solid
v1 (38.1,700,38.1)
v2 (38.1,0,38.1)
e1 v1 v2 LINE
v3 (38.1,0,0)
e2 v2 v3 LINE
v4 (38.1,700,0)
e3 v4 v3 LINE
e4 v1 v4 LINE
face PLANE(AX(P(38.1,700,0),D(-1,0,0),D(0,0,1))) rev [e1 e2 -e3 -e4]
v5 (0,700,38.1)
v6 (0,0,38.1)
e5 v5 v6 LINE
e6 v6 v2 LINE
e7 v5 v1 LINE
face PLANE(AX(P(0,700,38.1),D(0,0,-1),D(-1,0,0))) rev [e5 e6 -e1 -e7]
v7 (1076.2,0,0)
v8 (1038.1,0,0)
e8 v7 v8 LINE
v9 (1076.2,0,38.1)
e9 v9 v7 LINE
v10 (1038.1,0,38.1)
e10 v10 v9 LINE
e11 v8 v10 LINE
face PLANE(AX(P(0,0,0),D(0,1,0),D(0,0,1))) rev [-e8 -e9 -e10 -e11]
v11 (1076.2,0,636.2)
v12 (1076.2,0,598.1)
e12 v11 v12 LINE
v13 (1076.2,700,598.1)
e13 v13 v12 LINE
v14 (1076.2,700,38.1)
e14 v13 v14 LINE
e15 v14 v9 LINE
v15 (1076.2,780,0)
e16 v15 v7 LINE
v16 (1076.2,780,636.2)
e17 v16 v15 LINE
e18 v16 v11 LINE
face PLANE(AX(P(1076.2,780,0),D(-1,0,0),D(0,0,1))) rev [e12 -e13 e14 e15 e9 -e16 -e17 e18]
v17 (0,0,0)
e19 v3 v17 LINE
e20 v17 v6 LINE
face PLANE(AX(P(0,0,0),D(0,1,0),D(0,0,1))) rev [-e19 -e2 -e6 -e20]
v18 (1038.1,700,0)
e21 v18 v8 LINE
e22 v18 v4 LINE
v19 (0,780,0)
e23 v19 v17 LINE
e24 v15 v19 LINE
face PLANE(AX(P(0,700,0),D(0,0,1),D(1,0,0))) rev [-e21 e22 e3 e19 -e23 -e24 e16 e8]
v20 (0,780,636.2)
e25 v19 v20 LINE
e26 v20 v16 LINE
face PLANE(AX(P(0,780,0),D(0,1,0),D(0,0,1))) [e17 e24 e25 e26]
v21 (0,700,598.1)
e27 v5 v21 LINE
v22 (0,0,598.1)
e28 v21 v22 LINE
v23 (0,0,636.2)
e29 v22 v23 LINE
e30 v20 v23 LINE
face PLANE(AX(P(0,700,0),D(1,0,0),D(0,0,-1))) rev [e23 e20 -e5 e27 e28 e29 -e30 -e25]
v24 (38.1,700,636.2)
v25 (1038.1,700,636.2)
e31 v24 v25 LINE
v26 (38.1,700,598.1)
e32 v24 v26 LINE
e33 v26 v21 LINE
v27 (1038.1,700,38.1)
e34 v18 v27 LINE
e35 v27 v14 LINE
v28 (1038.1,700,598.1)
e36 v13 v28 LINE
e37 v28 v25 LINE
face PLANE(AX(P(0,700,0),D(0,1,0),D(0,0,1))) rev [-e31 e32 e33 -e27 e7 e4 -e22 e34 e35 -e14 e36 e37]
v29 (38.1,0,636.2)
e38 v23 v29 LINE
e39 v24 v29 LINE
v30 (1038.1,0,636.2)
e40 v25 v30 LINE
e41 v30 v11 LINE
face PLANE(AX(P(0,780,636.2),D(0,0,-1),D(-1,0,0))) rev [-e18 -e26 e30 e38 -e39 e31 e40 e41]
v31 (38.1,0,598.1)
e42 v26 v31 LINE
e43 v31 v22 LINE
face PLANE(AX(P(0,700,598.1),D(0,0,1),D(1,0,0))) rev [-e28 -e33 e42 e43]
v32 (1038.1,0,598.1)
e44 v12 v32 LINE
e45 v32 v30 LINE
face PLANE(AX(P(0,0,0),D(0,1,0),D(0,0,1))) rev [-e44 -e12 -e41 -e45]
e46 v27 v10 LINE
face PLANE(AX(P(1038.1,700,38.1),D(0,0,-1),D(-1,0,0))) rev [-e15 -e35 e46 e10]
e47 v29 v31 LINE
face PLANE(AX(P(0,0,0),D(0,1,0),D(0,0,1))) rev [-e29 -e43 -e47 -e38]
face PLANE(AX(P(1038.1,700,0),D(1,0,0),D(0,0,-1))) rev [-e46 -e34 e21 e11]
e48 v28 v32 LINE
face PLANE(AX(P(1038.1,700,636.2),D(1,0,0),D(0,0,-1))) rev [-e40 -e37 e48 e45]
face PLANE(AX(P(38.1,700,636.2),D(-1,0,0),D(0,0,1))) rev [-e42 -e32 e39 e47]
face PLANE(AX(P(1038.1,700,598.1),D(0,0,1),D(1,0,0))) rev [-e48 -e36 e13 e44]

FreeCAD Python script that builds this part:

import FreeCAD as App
import Part
import Sketcher

V = App.Vector


def add_polygon(sketch, points):
    """Adds a closed chain of lines whose ends are joined by coincident constraints."""
    first, n = sketch.GeometryCount, len(points)
    for a, b in zip(points, points[1:] + points[:1]):
        sketch.addGeometry(Part.LineSegment(App.Vector(*a, 0), App.Vector(*b, 0)), False)
    for i in range(n):
        sketch.addConstraint(Sketcher.Constraint("Coincident", first + i, 2, first + (i + 1) % n, 1))

doc = App.newDocument("Part")
body = doc.addObject("PartDesign::Body", "Body")

# Sketch on XZ plane
sketch1 = body.newObject("Sketcher::SketchObject", "Sketch")
sketch1.AttachmentSupport = (doc.getObject("XZ_Plane"), [""])
sketch1.MapMode = "FlatFace"
add_polygon(sketch1, [(0, 0), (0, 38.1), (38.1, 38.1), (38.1, 0)])  # lines 0-3
sketch1.addConstraint(Sketcher.Constraint("Vertical", 0))
sketch1.addConstraint(Sketcher.Constraint("Horizontal", 1))
sketch1.addConstraint(Sketcher.Constraint("Vertical", 2))
sketch1.addConstraint(Sketcher.Constraint("Horizontal", 3))
sketch1.addConstraint(Sketcher.Constraint("Coincident", 3, 2, -1, 1))
sketch1.addConstraint(Sketcher.Constraint("Equal", 3, 0))
sketch1.addConstraint(Sketcher.Constraint("DistanceX", 1, 1, 1, 2, 38.1))
pad1 = body.newObject("PartDesign::Pad", "Pad")
pad1.Profile = sketch1
pad1.Length = 700
pad1.Reversed = True
body2 = doc.addObject("PartDesign::Body", "Body001")

# Sketch on XZ plane
sketch2 = body2.newObject("Sketcher::SketchObject", "Sketch001")
sketch2.AttachmentSupport = (doc.getObject("XZ_Plane001"), [""])
sketch2.MapMode = "FlatFace"
add_polygon(sketch2, [(1038.1, 0), (1038.1, 38.1), (1076.2, 38.1), (1076.2, 0)])  # lines 0-3
sketch2.addConstraint(Sketcher.Constraint("Vertical", 0))
sketch2.addConstraint(Sketcher.Constraint("Horizontal", 1))
sketch2.addConstraint(Sketcher.Constraint("Vertical", 2))
sketch2.addConstraint(Sketcher.Constraint("Horizontal", 3))
sketch2.addConstraint(Sketcher.Constraint("PointOnObject", 2, 2, -1))
sketch2.addConstraint(Sketcher.Constraint("Equal", 3, 0))
sketch2.addConstraint(Sketcher.Constraint("DistanceX", 1, 1, 1, 2, 38.1))
sketch2.addConstraint(Sketcher.Constraint("DistanceX", -1, 1, 0, 2, 1038.1))
pad2 = body2.newObject("PartDesign::Pad", "Pad001")
pad2.Profile = sketch2
pad2.Length = 700
pad2.Reversed = True
body3 = doc.addObject("PartDesign::Body", "Body002")

# Sketch on XZ plane
sketch3 = body3.newObject("Sketcher::SketchObject", "Sketch002")
sketch3.AttachmentSupport = (doc.getObject("XZ_Plane002"), [""])
sketch3.MapMode = "FlatFace"
add_polygon(sketch3, [(1038.1, 598.1), (1038.1, 636.2), (1076.2, 636.2), (1076.2, 598.1)])  # lines 0-3
sketch3.addConstraint(Sketcher.Constraint("Vertical", 0))
sketch3.addConstraint(Sketcher.Constraint("Horizontal", 1))
sketch3.addConstraint(Sketcher.Constraint("Vertical", 2))
sketch3.addConstraint(Sketcher.Constraint("Horizontal", 3))
sketch3.addConstraint(Sketcher.Constraint("Equal", 3, 0))
sketch3.addConstraint(Sketcher.Constraint("DistanceX", 1, 1, 1, 2, 38.1))
sketch3.addConstraint(Sketcher.Constraint("DistanceX", -1, 1, 0, 2, 1038.1))
sketch3.addConstraint(Sketcher.Constraint("DistanceY", -1, 1, 0, 2, 636.2))
pad3 = body3.newObject("PartDesign::Pad", "Pad002")
pad3.Profile = sketch3
pad3.Length = 700
pad3.Reversed = True
body4 = doc.addObject("PartDesign::Body", "Body003")

# Sketch on XZ plane
sketch4 = body4.newObject("Sketcher::SketchObject", "Sketch003")
sketch4.AttachmentSupport = (doc.getObject("XZ_Plane003"), [""])
sketch4.MapMode = "FlatFace"
add_polygon(sketch4, [(0, 598.1), (0, 636.2), (38.1, 636.2), (38.1, 598.1)])  # lines 0-3
sketch4.addConstraint(Sketcher.Constraint("Vertical", 0))
sketch4.addConstraint(Sketcher.Constraint("Horizontal", 1))
sketch4.addConstraint(Sketcher.Constraint("Vertical", 2))
sketch4.addConstraint(Sketcher.Constraint("Horizontal", 3))
sketch4.addConstraint(Sketcher.Constraint("PointOnObject", 0, 2, -2))
sketch4.addConstraint(Sketcher.Constraint("Equal", 3, 0))
sketch4.addConstraint(Sketcher.Constraint("DistanceX", 1, 1, 1, 2, 38.1))
sketch4.addConstraint(Sketcher.Constraint("DistanceY", -1, 1, 0, 2, 636.2))
pad4 = body4.newObject("PartDesign::Pad", "Pad003")
pad4.Profile = sketch4
pad4.Length = 700
pad4.Reversed = True
body.AllowCompound = True
doc.recompute()

boolean = body.newObject("PartDesign::Boolean", "Boolean")
boolean.Type = "Fuse"
boolean.addObjects([body2])
doc.recompute()

boolean2 = body.newObject("PartDesign::Boolean", "Boolean001")
boolean2.Type = "Fuse"
boolean2.addObjects([body3])
doc.recompute()

boolean3 = body.newObject("PartDesign::Boolean", "Boolean002")
boolean3.Type = "Fuse"
boolean3.addObjects([body4])

# Sketch on XZ plane
sketch5 = body.newObject("Sketcher::SketchObject", "Sketch004")
sketch5.AttachmentSupport = (doc.getObject("XZ_Plane"), [""])
sketch5.MapMode = "FlatFace"
sketch5.AttachmentOffset = App.Placement(V(0, 0, -700), App.Rotation())
add_polygon(sketch5, [(0, 0), (0, 636.2), (1076.2, 636.2), (1076.2, 0)])  # lines 0-3
sketch5.addConstraint(Sketcher.Constraint("Vertical", 0))
sketch5.addConstraint(Sketcher.Constraint("Horizontal", 1))
sketch5.addConstraint(Sketcher.Constraint("Vertical", 2))
sketch5.addConstraint(Sketcher.Constraint("Horizontal", 3))
sketch5.addConstraint(Sketcher.Constraint("Coincident", 3, 2, -1, 1))
sketch5.addConstraint(Sketcher.Constraint("DistanceX", 1, 1, 1, 2, 1076.2))
sketch5.addConstraint(Sketcher.Constraint("DistanceY", 0, 1, 0, 2, 636.2))
pad5 = body.newObject("PartDesign::Pad", "Pad004")
pad5.Profile = sketch5
pad5.Length = 80
pad5.Reversed = True

doc.recompute()
